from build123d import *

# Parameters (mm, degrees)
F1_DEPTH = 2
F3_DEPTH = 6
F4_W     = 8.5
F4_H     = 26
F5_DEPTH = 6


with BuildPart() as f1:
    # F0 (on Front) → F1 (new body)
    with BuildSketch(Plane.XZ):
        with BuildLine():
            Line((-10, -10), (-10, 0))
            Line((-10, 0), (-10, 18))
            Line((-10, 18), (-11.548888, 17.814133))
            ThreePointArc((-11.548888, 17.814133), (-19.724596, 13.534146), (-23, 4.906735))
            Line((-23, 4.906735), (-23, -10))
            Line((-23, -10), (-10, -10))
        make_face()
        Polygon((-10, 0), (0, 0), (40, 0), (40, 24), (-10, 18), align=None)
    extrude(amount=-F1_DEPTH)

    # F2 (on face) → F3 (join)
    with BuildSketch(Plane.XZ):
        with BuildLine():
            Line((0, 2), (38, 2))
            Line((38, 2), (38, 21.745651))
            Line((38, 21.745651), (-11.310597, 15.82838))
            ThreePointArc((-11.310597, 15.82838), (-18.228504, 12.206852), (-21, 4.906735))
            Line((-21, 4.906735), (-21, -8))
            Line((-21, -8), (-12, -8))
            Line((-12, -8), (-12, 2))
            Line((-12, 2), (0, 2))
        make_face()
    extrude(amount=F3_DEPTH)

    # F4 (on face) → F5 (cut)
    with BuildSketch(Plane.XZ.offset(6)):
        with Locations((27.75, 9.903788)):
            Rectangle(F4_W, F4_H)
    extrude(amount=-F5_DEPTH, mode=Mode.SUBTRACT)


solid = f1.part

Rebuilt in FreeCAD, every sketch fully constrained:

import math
import FreeCAD as App
import Part
import Sketcher
from FreeCAD import Vector
Q = App.Units.Quantity

doc = App.newDocument("Part")
params = doc.addObject("Spreadsheet::Sheet", "Params")
for row, (alias, value) in enumerate([
    ("sketch1_radius", "13 mm"),
    ("sketch1_width", "50 mm"),
    ("sketch1_height", "10 mm"),
    ("sketch1_height2", "24 mm"),
    ("pad1_length", "2 mm"),
    ("sketch2_radius", "11.000001 mm"),
    ("sketch2_width", "9 mm"),
    ("sketch2_width2", "50 mm"),
    ("sketch2_height", "10 mm"),
    ("pad2_length", "6 mm"),
    ("sketch3_height", "26 mm"),
    ("sketch3_width", "8.5 mm"),
    ("pocket1_length", "6 mm"),
], start=1):
    params.set(f"A{row}", alias)
    params.set(f"B{row}", "=" + value)
    params.setAlias(f"B{row}", alias)

body = doc.addObject("PartDesign::Body", "Body")

# Sketch on XZ plane
sketch1 = body.newObject("Sketcher::SketchObject", "Sketch")
sketch1.AttachmentSupport = (doc.getObject("XZ_Plane"), [""])
sketch1.MapMode = "FlatFace"
sketch1.addGeometry([
    Part.LineSegment(Vector(-10, -10, 0), Vector(-10, 0, 0)),  # 0
    Part.LineSegment(Vector(-10, 0, 0), Vector(40, 0, 0)),  # 1
    Part.LineSegment(Vector(40, 0, 0), Vector(40, 24, 0)),  # 2
    Part.LineSegment(Vector(40, 24, 0), Vector(-10, 18, 0)),  # 3
    Part.LineSegment(Vector(-10, 18, 0), Vector(-11.5, 17.8, 0)),  # 4
    Part.ArcOfCircle(Part.Circle(Vector(-10, 4.9, 0), Vector(0, 0, 1), 13), math.radians(97), math.radians(180)),  # 5
    Part.LineSegment(Vector(-23, 4.9, 0), Vector(-23, -10, 0)),  # 6
    Part.LineSegment(Vector(-23, -10, 0), Vector(-10, -10, 0)),  # 7
], False)
sketch1.addConstraint([
    Sketcher.Constraint("Coincident", 0, 2, 1, 1),
    Sketcher.Constraint("Coincident", 1, 2, 2, 1),
    Sketcher.Constraint("Coincident", 2, 2, 3, 1),
    Sketcher.Constraint("Coincident", 3, 2, 4, 1),
    Sketcher.Constraint("Tangent", 4, 2, 5, 1),
    Sketcher.Constraint("Tangent", 5, 2, 6, 1),
    Sketcher.Constraint("Coincident", 6, 2, 7, 1),
    Sketcher.Constraint("Coincident", 7, 2, 0, 1),
    Sketcher.Constraint("Vertical", 0),
    Sketcher.Constraint("Horizontal", 1),
    Sketcher.Constraint("Vertical", 2),
    Sketcher.Constraint("Vertical", 6),
    Sketcher.Constraint("Horizontal", 7),
    Sketcher.Constraint("PointOnObject", 0, 2, -1),
    Sketcher.Constraint("Parallel", 3, 4),
    Sketcher.Constraint("Vertical", 5, 3, 0, 2),
    Sketcher.Constraint("Vertical", 0, 2, 3, 2),
    Sketcher.Constraint("Radius", 5, Q("13 mm")),
    Sketcher.Constraint("DistanceX", 1, 1, 1, 2, Q("50 mm")),
    Sketcher.Constraint("DistanceY", 0, 1, 0, 2, Q("10 mm")),
    Sketcher.Constraint("DistanceY", 2, 1, 2, 2, Q("24 mm")),
    Sketcher.Constraint("DistanceX", 5, 3, -1, 1, Q("10 mm")),
    Sketcher.Constraint("DistanceY", -1, 1, 3, 2, Q("18 mm")),
])
sketch1.setExpression("Constraints[17]", "Params.sketch1_radius")
sketch1.setExpression("Constraints[18]", "Params.sketch1_width")
sketch1.setExpression("Constraints[19]", "Params.sketch1_height")
sketch1.setExpression("Constraints[20]", "Params.sketch1_height2")
pad1 = body.newObject("PartDesign::Pad", "Pad")
pad1.Profile = sketch1
pad1.setExpression("Length", "Params.pad1_length")
pad1.Reversed = True

# Sketch on XZ plane
sketch2 = body.newObject("Sketcher::SketchObject", "Sketch001")
sketch2.AttachmentSupport = (doc.getObject("XZ_Plane"), [""])
sketch2.MapMode = "FlatFace"
sketch2.addGeometry([
    Part.LineSegment(Vector(38, 2, 0), Vector(38, 22, 0)),  # 0
    Part.LineSegment(Vector(38, 22, 0), Vector(-11, 16, 0)),  # 1
    Part.ArcOfCircle(Part.Circle(Vector(-10, 5, 0), Vector(0, 0, 1), 11), math.radians(97), math.radians(180)),  # 2
    Part.LineSegment(Vector(-21, 5, 0), Vector(-21, -8, 0)),  # 3
    Part.LineSegment(Vector(-21, -8, 0), Vector(-12, -8, 0)),  # 4
    Part.LineSegment(Vector(-12, -8, 0), Vector(-12, 2, 0)),  # 5
    Part.LineSegment(Vector(-12, 2, 0), Vector(38, 2, 0)),  # 6
], False)
sketch2.addConstraint([
    Sketcher.Constraint("Coincident", 0, 2, 1, 1),
    Sketcher.Constraint("Tangent", 1, 2, 2, 1),
    Sketcher.Constraint("Tangent", 2, 2, 3, 1),
    Sketcher.Constraint("Coincident", 3, 2, 4, 1),
    Sketcher.Constraint("Coincident", 4, 2, 5, 1),
    Sketcher.Constraint("Coincident", 5, 2, 6, 1),
    Sketcher.Constraint("Coincident", 6, 2, 0, 1),
    Sketcher.Constraint("Vertical", 0),
    Sketcher.Constraint("Vertical", 3),
    Sketcher.Constraint("Horizontal", 4),
    Sketcher.Constraint("Vertical", 5),
    Sketcher.Constraint("Horizontal", 6),
    Sketcher.Constraint("Radius", 2, Q("11.000001 mm")),
    Sketcher.Constraint("DistanceX", 4, 1, 4, 2, Q("9 mm")),
    Sketcher.Constraint("DistanceX", 6, 1, 6, 2, Q("50 mm")),
    Sketcher.Constraint("DistanceY", 5, 1, 5, 2, Q("10 mm")),
    Sketcher.Constraint("DistanceX", 2, 3, -1, 1, Q("9.999999 mm")),
    Sketcher.Constraint("DistanceY", 3, 2, -1, 1, Q("8 mm")),
    Sketcher.Constraint("DistanceY", 0, 1, 0, 2, Q("19.745651 mm")),
    Sketcher.Constraint("DistanceX", 1, 2, 2, 3, Q("1.310598 mm")),
])
sketch2.setExpression("Constraints[12]", "Params.sketch2_radius")
sketch2.setExpression("Constraints[13]", "Params.sketch2_width")
sketch2.setExpression("Constraints[14]", "Params.sketch2_width2")
sketch2.setExpression("Constraints[15]", "Params.sketch2_height")
pad2 = body.newObject("PartDesign::Pad", "Pad001")
pad2.Profile = sketch2
pad2.setExpression("Length", "Params.pad2_length")

# Sketch on XZ plane
sketch3 = body.newObject("Sketcher::SketchObject", "Sketch002")
sketch3.AttachmentSupport = (doc.getObject("XZ_Plane"), [""])
sketch3.MapMode = "FlatFace"
sketch3.AttachmentOffset = App.Placement(Vector(0, 0, 6), App.Rotation())
sketch3.addGeometry([
    Part.LineSegment(Vector(24, 23, 0), Vector(24, -3, 0)),
    Part.LineSegment(Vector(24, -3, 0), Vector(32, -3, 0)),
    Part.LineSegment(Vector(32, -3, 0), Vector(32, 23, 0)),
    Part.LineSegment(Vector(32, 23, 0), Vector(24, 23, 0)),
], False)
sketch3.addConstraint([
    Sketcher.Constraint("Coincident", 0, 2, 1, 1),
    Sketcher.Constraint("Coincident", 1, 2, 2, 1),
    Sketcher.Constraint("Coincident", 2, 2, 3, 1),
    Sketcher.Constraint("Coincident", 3, 2, 0, 1),
    Sketcher.Constraint("Vertical", 0),
    Sketcher.Constraint("Horizontal", 1),
    Sketcher.Constraint("Vertical", 2),
    Sketcher.Constraint("Horizontal", 3),
    Sketcher.Constraint("DistanceY", 0, 2, 0, 1, Q("26 mm")),
    Sketcher.Constraint("DistanceX", 1, 1, 1, 2, Q("8.5 mm")),
    Sketcher.Constraint("DistanceX", -1, 1, 1, 2, Q("32 mm")),
    Sketcher.Constraint("DistanceY", 0, 2, -1, 1, Q("3.096212 mm")),
])
sketch3.setExpression("Constraints[8]", "Params.sketch3_height")
sketch3.setExpression("Constraints[9]", "Params.sketch3_width")
pocket1 = body.newObject("PartDesign::Pocket", "Pocket")
pocket1.Profile = sketch3
pocket1.setExpression("Length", "Params.pocket1_length")

doc.recompute()
